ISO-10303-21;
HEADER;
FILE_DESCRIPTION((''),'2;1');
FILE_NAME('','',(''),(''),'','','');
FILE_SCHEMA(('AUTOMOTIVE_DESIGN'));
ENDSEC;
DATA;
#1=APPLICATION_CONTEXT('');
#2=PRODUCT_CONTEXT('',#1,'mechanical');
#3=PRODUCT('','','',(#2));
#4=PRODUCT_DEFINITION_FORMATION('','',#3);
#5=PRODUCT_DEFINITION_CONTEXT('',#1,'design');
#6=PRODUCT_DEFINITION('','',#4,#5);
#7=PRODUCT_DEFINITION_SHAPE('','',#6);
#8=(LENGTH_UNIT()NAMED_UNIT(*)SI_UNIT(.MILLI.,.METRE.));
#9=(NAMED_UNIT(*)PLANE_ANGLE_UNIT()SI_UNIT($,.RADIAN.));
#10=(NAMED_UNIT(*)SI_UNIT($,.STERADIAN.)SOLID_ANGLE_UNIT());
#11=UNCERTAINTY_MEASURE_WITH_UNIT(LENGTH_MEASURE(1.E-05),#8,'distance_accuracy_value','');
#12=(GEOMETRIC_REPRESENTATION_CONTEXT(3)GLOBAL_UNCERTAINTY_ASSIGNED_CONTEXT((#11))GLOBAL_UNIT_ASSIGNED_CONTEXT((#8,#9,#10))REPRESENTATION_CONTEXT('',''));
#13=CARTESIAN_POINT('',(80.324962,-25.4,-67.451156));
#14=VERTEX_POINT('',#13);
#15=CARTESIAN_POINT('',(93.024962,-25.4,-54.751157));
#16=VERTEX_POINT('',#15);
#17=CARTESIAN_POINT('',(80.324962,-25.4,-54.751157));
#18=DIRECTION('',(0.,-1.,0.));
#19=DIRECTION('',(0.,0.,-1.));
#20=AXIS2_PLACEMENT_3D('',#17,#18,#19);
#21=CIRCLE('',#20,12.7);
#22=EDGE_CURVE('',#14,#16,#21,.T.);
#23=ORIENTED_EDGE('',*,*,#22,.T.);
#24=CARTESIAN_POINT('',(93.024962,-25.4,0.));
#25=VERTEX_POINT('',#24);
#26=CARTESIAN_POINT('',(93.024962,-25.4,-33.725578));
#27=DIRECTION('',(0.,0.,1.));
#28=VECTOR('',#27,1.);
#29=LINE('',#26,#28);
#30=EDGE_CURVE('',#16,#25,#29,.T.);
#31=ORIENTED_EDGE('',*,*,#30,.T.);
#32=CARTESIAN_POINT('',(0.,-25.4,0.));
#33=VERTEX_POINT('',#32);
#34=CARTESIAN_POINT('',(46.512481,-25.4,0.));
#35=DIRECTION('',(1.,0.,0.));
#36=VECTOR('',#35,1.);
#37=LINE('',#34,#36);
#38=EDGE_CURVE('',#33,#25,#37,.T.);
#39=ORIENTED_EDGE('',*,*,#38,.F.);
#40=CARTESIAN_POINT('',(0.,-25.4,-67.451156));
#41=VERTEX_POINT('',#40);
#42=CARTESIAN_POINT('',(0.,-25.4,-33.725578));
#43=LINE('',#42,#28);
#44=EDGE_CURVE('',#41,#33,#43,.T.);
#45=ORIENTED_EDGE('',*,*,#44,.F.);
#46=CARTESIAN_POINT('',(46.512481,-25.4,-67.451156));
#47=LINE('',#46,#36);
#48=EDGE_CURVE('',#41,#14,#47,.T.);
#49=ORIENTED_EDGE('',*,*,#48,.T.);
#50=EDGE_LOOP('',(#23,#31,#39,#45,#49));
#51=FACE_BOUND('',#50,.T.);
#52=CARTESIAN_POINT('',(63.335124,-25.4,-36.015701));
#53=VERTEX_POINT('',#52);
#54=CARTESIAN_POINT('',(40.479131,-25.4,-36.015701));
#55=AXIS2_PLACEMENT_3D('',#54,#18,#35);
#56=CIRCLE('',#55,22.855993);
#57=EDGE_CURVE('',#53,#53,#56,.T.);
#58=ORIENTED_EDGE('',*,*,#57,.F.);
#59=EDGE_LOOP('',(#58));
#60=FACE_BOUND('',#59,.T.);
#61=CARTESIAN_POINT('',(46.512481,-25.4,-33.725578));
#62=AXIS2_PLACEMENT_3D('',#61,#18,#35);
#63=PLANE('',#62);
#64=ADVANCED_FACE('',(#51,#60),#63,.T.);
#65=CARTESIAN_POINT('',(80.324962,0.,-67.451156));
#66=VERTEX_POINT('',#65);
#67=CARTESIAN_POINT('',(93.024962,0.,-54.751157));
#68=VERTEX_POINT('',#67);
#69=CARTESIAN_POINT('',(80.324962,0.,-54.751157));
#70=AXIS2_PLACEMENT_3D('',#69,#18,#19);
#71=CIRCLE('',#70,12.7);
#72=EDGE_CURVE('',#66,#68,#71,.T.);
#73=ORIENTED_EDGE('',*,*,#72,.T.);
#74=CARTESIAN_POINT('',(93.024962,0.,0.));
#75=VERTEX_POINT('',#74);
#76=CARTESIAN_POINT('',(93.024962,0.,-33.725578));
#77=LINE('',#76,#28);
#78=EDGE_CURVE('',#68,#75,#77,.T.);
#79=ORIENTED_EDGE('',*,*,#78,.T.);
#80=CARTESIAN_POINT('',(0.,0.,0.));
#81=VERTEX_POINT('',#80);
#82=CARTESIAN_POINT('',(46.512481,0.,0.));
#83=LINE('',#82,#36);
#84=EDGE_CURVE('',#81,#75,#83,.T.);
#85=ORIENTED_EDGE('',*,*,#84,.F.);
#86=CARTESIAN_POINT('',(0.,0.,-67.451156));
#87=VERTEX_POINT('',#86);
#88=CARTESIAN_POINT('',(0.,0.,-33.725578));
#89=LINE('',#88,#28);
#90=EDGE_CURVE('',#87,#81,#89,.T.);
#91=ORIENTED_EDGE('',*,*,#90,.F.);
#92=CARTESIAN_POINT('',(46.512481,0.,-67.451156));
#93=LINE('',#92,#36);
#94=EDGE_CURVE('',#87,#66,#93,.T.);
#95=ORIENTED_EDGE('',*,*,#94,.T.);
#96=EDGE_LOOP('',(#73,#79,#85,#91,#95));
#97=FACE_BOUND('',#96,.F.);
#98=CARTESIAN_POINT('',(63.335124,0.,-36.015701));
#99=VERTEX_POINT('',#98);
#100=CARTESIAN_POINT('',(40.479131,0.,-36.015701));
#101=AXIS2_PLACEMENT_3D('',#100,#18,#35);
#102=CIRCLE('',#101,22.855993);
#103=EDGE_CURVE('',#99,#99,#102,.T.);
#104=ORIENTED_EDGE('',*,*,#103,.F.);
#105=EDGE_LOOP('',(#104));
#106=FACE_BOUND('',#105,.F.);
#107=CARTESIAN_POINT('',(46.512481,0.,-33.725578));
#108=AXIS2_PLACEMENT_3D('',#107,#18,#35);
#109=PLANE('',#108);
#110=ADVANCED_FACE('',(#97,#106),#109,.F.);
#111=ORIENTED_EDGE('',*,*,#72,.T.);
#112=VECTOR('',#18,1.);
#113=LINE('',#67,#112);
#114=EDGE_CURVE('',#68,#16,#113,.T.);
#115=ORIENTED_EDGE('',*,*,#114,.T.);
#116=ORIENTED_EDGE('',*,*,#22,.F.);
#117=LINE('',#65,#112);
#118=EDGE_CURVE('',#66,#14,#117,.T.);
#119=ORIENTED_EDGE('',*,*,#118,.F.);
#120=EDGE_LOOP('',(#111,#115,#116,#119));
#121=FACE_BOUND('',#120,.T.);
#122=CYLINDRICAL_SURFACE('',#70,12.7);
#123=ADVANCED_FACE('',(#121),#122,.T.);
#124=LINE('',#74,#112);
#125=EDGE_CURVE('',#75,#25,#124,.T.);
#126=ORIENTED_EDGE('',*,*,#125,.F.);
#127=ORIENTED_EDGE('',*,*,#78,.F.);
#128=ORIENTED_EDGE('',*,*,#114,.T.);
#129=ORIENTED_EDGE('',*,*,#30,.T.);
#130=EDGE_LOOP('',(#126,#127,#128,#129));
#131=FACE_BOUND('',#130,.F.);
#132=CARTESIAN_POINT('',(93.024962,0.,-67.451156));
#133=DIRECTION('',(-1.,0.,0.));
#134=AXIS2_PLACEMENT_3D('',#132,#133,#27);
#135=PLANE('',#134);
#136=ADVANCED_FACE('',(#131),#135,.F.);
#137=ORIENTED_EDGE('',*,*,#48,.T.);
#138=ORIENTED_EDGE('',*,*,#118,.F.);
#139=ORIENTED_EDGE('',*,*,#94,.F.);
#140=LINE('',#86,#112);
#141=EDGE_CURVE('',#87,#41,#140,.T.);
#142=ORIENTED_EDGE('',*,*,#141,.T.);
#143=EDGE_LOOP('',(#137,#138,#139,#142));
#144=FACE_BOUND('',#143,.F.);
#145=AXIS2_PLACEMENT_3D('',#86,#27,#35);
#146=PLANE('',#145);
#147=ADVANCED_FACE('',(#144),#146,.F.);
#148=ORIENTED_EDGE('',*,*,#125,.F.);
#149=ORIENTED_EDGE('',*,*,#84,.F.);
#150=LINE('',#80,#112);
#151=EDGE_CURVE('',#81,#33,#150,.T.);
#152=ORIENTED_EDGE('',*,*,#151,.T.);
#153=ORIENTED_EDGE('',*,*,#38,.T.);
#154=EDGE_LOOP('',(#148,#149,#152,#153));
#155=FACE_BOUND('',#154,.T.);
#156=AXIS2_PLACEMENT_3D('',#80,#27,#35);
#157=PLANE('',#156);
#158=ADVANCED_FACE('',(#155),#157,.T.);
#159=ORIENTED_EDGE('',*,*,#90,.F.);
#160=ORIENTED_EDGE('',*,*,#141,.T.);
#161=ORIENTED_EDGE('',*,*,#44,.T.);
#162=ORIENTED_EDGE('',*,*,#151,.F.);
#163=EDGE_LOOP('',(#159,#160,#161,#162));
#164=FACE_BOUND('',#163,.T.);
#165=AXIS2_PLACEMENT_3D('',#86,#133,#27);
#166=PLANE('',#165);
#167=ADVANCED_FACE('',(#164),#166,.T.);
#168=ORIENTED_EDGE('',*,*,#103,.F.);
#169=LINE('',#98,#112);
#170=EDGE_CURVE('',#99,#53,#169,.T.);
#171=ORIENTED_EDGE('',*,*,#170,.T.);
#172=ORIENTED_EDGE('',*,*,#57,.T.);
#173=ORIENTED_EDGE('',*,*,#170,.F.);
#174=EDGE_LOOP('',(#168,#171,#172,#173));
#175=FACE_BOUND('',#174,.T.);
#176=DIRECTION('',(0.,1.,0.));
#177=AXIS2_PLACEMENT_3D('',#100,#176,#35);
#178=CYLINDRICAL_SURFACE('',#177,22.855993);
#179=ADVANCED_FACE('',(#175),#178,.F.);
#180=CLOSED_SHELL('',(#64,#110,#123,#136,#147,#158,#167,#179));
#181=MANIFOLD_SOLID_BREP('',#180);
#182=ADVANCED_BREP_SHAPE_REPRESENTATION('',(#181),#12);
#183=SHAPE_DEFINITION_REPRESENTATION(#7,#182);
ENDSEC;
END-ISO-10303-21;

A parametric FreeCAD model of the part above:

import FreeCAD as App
import Part
import Sketcher
Q = App.Units.Quantity


def edges_at(feature, points):
    """Names of the edges that pass closest to the given points."""
    edges = feature.Shape.Edges
    near = lambda p: min(range(len(edges)), key=lambda i: edges[i].distToShape(Part.Vertex(*p))[0])
    return sorted({f"Edge{near(p) + 1}" for p in points})

doc = App.newDocument("Part")
body = doc.addObject("PartDesign::Body", "Body")

# Sketch on XZ plane
sketch1 = doc.addObject("Sketcher::SketchObject", "Sketch")
body.addObject(sketch1)
sketch1.AttachmentSupport = (doc.XZ_Plane, [""])
sketch1.MapMode = "FlatFace"
sketch1.addGeometry([
    Part.LineSegment(App.Vector(0, 0, 0), App.Vector(0, -67.451156, 0)),
    Part.LineSegment(App.Vector(0, -67.451156, 0), App.Vector(93.024962, -67.451156, 0)),
    Part.LineSegment(App.Vector(93.024962, -67.451156, 0), App.Vector(93.024962, 0, 0)),
    Part.LineSegment(App.Vector(93.024962, 0, 0), App.Vector(0, 0, 0)),
], False)
sketch1.addConstraint([
    Sketcher.Constraint("Coincident", 0, 2, 1, 1),
    Sketcher.Constraint("Coincident", 1, 2, 2, 1),
    Sketcher.Constraint("Coincident", 2, 2, 3, 1),
    Sketcher.Constraint("Coincident", 3, 2, 0, 1),
    Sketcher.Constraint("Vertical", 0),
    Sketcher.Constraint("Horizontal", 1),
    Sketcher.Constraint("Vertical", 2),
    Sketcher.Constraint("Horizontal", 3),
    Sketcher.Constraint("Coincident", 3, 2, -1, 1),
    Sketcher.Constraint("DistanceX", 1, 1, 1, 2, Q("3.6624001 in")),
    Sketcher.Constraint("DistanceY", 0, 2, 0, 1, Q("67.451157 mm")),
])
pad1 = doc.addObject("PartDesign::Pad", "Pad")
body.addObject(pad1)
pad1.Profile = sketch1
pad1.Length = Q("1 in")
doc.recompute()

fillet = doc.addObject("PartDesign::Fillet", "Fillet")
body.addObject(fillet)
fillet.Base = (pad1, edges_at(pad1, [(93.025, -12.7, -67.451)]))
fillet.Radius = Q("0.5 in")

# Sketch on XZ plane
sketch2 = doc.addObject("Sketcher::SketchObject", "Sketch001")
body.addObject(sketch2)
sketch2.AttachmentSupport = (doc.XZ_Plane, [""])
sketch2.MapMode = "FlatFace"
sketch2.addGeometry(Part.Circle(App.Vector(40.479131, -36.015701, 0), App.Vector(0, 0, 1), 22.855993), False)
sketch2.addConstraint([
    Sketcher.Constraint("Diameter", 0, Q("45.711986 mm")),
    Sketcher.Constraint("DistanceY", 0, 3, -1, 1, Q("36.015701 mm")),
    Sketcher.Constraint("DistanceX", -1, 1, 0, 3, Q("40.479131 mm")),
])
pocket1 = doc.addObject("PartDesign::Pocket", "Pocket")
body.addObject(pocket1)
pocket1.Profile = sketch2
pocket1.Length = Q("1 in")
pocket1.Reversed = True

doc.recompute()
